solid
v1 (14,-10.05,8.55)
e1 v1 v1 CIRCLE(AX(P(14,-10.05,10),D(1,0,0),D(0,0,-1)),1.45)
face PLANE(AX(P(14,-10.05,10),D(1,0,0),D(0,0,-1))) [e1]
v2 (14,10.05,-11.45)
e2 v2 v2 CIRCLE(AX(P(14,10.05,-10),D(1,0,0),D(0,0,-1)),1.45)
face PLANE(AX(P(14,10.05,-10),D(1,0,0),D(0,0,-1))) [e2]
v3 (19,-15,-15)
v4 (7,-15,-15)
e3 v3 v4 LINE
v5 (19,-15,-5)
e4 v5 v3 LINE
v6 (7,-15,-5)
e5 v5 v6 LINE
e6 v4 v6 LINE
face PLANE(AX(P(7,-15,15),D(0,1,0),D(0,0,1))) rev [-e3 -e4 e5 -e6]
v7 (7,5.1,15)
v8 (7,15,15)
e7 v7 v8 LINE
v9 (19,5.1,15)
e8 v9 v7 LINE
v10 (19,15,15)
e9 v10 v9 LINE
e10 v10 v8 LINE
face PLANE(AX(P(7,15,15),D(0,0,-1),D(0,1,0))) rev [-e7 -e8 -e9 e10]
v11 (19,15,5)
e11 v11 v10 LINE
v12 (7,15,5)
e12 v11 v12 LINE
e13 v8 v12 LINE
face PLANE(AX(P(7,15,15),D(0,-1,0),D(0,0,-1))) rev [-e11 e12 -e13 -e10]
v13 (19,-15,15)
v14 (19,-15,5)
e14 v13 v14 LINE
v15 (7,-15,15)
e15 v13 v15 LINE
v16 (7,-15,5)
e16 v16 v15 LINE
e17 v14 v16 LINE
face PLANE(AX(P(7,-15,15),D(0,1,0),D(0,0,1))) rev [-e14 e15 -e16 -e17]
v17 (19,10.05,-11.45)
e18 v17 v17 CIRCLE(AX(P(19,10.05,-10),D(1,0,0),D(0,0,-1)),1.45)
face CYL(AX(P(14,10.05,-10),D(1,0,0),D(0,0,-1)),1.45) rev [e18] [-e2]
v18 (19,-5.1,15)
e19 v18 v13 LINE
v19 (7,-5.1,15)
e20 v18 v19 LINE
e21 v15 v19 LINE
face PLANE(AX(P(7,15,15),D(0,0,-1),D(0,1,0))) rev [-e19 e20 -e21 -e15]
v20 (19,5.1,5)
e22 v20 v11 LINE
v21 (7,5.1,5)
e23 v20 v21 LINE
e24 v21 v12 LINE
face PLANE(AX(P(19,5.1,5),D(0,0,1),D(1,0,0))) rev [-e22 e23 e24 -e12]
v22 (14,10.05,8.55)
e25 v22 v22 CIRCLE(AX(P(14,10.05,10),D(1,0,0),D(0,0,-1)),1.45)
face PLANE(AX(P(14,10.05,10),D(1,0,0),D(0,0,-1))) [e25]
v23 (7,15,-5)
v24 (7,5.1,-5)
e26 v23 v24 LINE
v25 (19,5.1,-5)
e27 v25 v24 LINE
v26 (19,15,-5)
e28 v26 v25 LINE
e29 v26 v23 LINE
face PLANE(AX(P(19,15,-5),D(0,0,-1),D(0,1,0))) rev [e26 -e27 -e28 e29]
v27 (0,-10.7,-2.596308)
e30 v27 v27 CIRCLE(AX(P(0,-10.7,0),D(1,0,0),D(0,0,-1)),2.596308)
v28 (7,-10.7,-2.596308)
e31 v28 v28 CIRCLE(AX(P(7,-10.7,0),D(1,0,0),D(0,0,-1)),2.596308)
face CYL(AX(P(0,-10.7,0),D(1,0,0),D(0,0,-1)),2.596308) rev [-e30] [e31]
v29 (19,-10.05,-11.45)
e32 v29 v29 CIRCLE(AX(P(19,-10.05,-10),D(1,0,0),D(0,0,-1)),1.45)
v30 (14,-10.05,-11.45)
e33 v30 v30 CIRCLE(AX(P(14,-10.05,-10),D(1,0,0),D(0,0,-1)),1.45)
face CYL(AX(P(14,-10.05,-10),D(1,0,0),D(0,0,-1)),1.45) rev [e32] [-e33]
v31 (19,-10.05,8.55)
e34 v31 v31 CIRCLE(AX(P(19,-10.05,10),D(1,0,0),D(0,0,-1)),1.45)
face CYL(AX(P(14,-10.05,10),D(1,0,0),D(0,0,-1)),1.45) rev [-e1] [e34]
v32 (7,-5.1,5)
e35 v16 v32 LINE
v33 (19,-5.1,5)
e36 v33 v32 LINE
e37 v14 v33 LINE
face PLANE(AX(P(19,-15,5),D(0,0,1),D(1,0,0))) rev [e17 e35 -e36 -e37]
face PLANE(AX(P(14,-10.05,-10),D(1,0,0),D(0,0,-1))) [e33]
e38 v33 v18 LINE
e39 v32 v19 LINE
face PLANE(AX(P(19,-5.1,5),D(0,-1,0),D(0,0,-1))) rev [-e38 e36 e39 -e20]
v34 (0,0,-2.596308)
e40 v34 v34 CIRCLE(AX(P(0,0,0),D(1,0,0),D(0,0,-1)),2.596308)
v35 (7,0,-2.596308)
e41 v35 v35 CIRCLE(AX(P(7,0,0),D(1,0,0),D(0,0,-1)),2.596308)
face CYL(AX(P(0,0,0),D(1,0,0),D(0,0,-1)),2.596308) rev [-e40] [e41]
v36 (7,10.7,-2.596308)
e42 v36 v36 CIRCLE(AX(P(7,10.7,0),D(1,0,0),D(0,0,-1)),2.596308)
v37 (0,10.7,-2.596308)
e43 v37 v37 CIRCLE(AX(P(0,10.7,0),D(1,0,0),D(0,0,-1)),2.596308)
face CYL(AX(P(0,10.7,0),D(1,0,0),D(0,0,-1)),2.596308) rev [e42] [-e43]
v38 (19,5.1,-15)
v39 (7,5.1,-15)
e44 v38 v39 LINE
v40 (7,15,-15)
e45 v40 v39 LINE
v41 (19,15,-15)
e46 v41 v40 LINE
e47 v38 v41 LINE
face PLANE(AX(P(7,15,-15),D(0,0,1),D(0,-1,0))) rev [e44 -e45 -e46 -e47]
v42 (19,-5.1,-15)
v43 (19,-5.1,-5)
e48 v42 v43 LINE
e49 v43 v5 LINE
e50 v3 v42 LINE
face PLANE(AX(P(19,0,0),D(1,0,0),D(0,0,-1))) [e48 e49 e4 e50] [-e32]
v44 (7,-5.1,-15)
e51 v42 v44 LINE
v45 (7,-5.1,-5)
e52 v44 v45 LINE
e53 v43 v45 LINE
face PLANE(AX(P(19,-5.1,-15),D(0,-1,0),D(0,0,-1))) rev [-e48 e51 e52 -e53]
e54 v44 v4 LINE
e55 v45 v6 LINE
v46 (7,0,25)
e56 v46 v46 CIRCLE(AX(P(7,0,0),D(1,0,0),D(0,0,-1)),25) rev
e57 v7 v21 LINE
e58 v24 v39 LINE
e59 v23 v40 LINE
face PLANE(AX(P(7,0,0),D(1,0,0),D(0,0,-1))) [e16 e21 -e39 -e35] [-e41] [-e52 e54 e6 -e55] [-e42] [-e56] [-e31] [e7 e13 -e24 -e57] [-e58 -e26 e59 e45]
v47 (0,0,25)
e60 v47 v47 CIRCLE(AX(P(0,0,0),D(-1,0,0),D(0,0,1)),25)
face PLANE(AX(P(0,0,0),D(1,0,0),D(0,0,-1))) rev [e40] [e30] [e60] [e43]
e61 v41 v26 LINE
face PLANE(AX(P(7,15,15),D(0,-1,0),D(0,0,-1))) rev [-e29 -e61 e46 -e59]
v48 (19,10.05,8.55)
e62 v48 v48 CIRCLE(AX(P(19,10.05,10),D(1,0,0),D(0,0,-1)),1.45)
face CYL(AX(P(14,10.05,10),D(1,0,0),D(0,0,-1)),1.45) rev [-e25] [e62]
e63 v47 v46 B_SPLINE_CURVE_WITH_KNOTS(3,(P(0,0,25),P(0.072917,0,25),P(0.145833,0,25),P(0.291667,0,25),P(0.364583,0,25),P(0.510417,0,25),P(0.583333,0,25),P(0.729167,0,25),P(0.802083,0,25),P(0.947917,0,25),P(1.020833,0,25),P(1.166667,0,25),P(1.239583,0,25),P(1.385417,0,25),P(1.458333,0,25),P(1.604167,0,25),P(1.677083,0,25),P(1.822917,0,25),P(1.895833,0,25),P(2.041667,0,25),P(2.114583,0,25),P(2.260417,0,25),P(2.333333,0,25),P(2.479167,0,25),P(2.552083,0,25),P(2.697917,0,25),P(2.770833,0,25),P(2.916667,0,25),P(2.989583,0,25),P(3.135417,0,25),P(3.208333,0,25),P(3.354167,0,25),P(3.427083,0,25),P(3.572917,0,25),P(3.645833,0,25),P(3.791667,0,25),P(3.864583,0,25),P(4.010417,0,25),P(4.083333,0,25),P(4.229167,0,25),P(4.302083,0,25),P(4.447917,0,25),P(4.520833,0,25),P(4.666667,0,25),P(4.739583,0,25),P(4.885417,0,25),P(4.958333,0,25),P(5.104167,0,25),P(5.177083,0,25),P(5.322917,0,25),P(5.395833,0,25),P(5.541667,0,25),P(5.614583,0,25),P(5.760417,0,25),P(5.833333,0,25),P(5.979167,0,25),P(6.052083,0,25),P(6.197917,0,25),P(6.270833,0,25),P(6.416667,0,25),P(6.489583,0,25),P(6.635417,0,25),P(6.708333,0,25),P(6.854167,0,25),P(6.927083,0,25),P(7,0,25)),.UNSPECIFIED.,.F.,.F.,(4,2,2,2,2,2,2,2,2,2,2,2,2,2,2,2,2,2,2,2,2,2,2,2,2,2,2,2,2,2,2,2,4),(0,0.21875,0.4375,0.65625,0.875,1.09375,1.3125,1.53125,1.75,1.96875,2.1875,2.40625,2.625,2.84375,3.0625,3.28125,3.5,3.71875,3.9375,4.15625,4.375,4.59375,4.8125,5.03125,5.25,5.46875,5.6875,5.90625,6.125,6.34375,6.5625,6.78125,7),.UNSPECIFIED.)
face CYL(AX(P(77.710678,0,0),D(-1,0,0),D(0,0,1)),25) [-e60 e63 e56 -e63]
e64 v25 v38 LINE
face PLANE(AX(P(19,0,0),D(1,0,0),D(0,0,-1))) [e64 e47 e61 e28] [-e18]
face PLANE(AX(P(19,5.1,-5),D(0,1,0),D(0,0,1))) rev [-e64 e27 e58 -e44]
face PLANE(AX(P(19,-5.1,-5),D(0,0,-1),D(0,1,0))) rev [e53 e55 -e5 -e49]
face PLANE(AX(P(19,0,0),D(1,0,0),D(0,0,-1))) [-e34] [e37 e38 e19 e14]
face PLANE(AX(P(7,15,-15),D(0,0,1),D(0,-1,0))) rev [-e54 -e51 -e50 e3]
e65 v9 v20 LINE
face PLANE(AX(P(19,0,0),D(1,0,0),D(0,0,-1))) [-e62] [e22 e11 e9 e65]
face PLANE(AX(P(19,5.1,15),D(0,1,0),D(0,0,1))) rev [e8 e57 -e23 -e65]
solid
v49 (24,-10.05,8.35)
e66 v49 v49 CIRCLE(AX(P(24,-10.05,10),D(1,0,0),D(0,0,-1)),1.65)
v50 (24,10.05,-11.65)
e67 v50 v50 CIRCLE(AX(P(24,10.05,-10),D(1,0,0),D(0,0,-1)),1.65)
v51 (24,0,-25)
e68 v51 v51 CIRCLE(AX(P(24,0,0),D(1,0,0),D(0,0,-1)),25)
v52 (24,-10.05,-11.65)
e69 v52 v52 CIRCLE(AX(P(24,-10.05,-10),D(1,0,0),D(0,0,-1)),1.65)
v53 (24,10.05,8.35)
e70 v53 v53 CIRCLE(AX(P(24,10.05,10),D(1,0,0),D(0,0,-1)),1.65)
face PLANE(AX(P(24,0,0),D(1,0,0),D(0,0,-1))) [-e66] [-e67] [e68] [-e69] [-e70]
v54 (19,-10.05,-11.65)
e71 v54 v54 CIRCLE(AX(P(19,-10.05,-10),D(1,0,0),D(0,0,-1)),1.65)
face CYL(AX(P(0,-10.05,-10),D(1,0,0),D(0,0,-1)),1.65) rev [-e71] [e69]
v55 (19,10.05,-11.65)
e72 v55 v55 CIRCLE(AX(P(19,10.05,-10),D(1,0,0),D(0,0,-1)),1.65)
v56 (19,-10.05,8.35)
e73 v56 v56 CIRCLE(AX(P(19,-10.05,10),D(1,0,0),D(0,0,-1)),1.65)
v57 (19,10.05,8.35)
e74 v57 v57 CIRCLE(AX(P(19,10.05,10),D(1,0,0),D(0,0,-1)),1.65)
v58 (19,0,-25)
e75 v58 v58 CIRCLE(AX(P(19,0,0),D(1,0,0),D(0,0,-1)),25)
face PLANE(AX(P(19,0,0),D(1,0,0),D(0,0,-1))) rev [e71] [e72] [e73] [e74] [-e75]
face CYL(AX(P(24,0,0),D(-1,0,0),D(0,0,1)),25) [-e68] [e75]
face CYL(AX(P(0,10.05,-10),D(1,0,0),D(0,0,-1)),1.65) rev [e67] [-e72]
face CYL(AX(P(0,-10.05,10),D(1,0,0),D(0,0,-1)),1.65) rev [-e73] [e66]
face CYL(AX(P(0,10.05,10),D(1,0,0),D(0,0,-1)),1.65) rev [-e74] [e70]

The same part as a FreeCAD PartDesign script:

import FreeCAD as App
import Part
import Sketcher
Q = App.Units.Quantity


def add_polygon(sketch, points):
    """Adds a closed chain of lines whose ends are joined by coincident constraints."""
    first, n = sketch.GeometryCount, len(points)
    for a, b in zip(points, points[1:] + points[:1]):
        sketch.addGeometry(Part.LineSegment(App.Vector(*a, 0), App.Vector(*b, 0)), False)
    for i in range(n):
        sketch.addConstraint(Sketcher.Constraint("Coincident", first + i, 2, first + (i + 1) % n, 1))

doc = App.newDocument("Part")
params = doc.addObject("Spreadsheet::Sheet", "Params")
for row, (alias, value) in enumerate([
    ("sketch1_width", "30 mm"),
    ("pad1_length", "7 mm"),
    ("sketch2_height", "10 mm"),
    ("sketch2_width", "9.9 mm"),
    ("pad2_length", "12 mm"),
    ("sketch4_diameter", "50 mm"),
    ("sketch4_width", "30 mm"),
    ("pad3_length", "7 mm"),
    ("sketch5_diameter", "50 mm"),
    ("pad4_length", "5 mm"),
    ("sketch6_diameter", "2.9 mm"),
    ("pad5_length", "10 mm"),
    ("sketch7_diameter", "3.3 mm"),
], start=1):
    params.set(f"A{row}", alias)
    params.set(f"B{row}", "=" + value)
    params.setAlias(f"B{row}", alias)

body = doc.addObject("PartDesign::Body", "Body")

sketch1 = body.newObject("Sketcher::SketchObject", "Sketch")
sketch1.AttachmentSupport = (doc.getObject("YZ_Plane"), [""])
sketch1.MapMode = "FlatFace"
add_polygon(sketch1, [(15, 15), (-15, 15), (-15, -15), (15, -15)])
sketch1.addConstraint([
    Sketcher.Constraint("Horizontal", 0),
    Sketcher.Constraint("Vertical", 1),
    Sketcher.Constraint("Horizontal", 2),
    Sketcher.Constraint("Vertical", 3),
    Sketcher.Constraint("Symmetric", 0, 2, 2, 2, -1, 1),
    Sketcher.Constraint("Equal", 2, 1),
    Sketcher.Constraint("DistanceX", 0, 2, 0, 1, Q("30 mm")),
])
sketch1.setExpression("Constraints[10]", "Params.sketch1_width")
pad1 = body.newObject("PartDesign::Pad", "Pad")
pad1.Profile = sketch1
pad1.setExpression("Length", "Params.pad1_length")

sketch2 = body.newObject("Sketcher::SketchObject", "Sketch001")
sketch2.AttachmentSupport = (doc.getObject("YZ_Plane"), [""])
sketch2.MapMode = "FlatFace"
sketch2.AttachmentOffset = App.Placement(App.Vector(0, 0, 7), App.Rotation())
add_polygon(sketch2, [(15, 15), (5, 15), (5, 5), (15, 5)])
add_polygon(sketch2, [(15, -5), (5, -5), (5, -15), (15, -15)])
add_polygon(sketch2, [(-5, -5), (-15, -5), (-15, -15), (-5, -15)])
add_polygon(sketch2, [(-5, 15), (-15, 15), (-15, 5), (-5, 5)])
sketch2.addConstraint([
    Sketcher.Constraint("Horizontal", 0),
    Sketcher.Constraint("Vertical", 1),
    Sketcher.Constraint("Horizontal", 2),
    Sketcher.Constraint("Vertical", 3),
    Sketcher.Constraint("Horizontal", 4),
    Sketcher.Constraint("Vertical", 5),
    Sketcher.Constraint("Horizontal", 6),
    Sketcher.Constraint("Vertical", 7),
    Sketcher.Constraint("Horizontal", 8),
    Sketcher.Constraint("Vertical", 9),
    Sketcher.Constraint("Horizontal", 10),
    Sketcher.Constraint("Vertical", 11),
    Sketcher.Constraint("Horizontal", 12),
    Sketcher.Constraint("Vertical", 13),
    Sketcher.Constraint("Horizontal", 14),
    Sketcher.Constraint("Vertical", 15),
    Sketcher.Constraint("Symmetric", 2, 2, 8, 2, -1, 1),
    Sketcher.Constraint("Symmetric", 0, 2, 10, 2, -1, 1),
    Sketcher.Constraint("Symmetric", 6, 2, 12, 2, -1, 1),
    Sketcher.Constraint("Symmetric", 4, 2, 14, 2, -1, 1),
    Sketcher.Constraint("Symmetric", 7, 2, 8, 2, -2),
    Sketcher.Constraint("Symmetric", 5, 2, 10, 2, -2),
    Sketcher.Constraint("DistanceY", 1, 2, 1, 1, Q("10 mm")),
    Sketcher.Constraint("DistanceX", 0, 2, 0, 1, Q("9.9 mm")),
    Sketcher.Constraint("DistanceY", -1, 1, 0, 2, Q("15 mm")),
    Sketcher.Constraint("DistanceX", -1, 1, 2, 2, Q("15 mm")),
])
sketch2.setExpression("Constraints[38]", "Params.sketch2_height")
sketch2.setExpression("Constraints[39]", "Params.sketch2_width")
pad2 = body.newObject("PartDesign::Pad", "Pad001")
pad2.Profile = sketch2
pad2.setExpression("Length", "Params.pad2_length")

sketch3 = body.newObject("Sketcher::SketchObject", "Sketch002")
sketch3.AttachmentSupport = (doc.getObject("YZ_Plane"), [""])
sketch3.MapMode = "FlatFace"
sketch3.AttachmentOffset = App.Placement(App.Vector(0, 0, 7), App.Rotation())
sketch3.addGeometry([
    Part.Circle(App.Vector(10.7, 0, 0), App.Vector(0, 0, 1), 2.6),
    Part.Circle(App.Vector(-10.7, 0, 0), App.Vector(0, 0, 1), 2.6),
    Part.Circle(App.Vector(0, 0, 0), App.Vector(0, 0, 1), 2.6),
], False)
sketch3.addConstraint([
    Sketcher.Constraint("Coincident", 2, 3, -1, 1),
    Sketcher.Constraint("Equal", 0, 1),
    Sketcher.Constraint("Equal", 1, 2),
    Sketcher.Constraint("Symmetric", 0, 3, 1, 3, -1, 1),
    Sketcher.Constraint("PointOnObject", 0, 3, -1),
    Sketcher.Constraint("DistanceX", -1, 1, 0, 3, Q("10.7 mm")),
    Sketcher.Constraint("Diameter", 0, Q("5.192616 mm")),
])
pocket1 = body.newObject("PartDesign::Pocket", "Pocket")
pocket1.Profile = sketch3
pocket1.Type = "ThroughAll"

sketch4 = body.newObject("Sketcher::SketchObject", "Sketch003")
sketch4.AttachmentSupport = (doc.getObject("YZ_Plane"), [""])
sketch4.MapMode = "FlatFace"
sketch4.addGeometry(Part.Circle(App.Vector(0, 0, 0), App.Vector(0, 0, 1), 25), False)
add_polygon(sketch4, [(-15, 15), (-15, -15), (15, -15), (15, 15)])
sketch4.addConstraint([
    Sketcher.Constraint("Vertical", 1),
    Sketcher.Constraint("Horizontal", 2),
    Sketcher.Constraint("Vertical", 3),
    Sketcher.Constraint("Horizontal", 4),
    Sketcher.Constraint("Coincident", 0, 3, -1, 1),
    Sketcher.Constraint("Symmetric", 1, 2, 3, 2, -1, 1),
    Sketcher.Constraint("Equal", 4, 1),
    Sketcher.Constraint("Diameter", 0, Q("50 mm")),
    Sketcher.Constraint("DistanceX", 2, 1, 2, 2, Q("30 mm")),
])
sketch4.setExpression("Constraints[11]", "Params.sketch4_diameter")
sketch4.setExpression("Constraints[12]", "Params.sketch4_width")
pad3 = body.newObject("PartDesign::Pad", "Pad002")
pad3.Profile = sketch4
pad3.setExpression("Length", "Params.pad3_length")
body2 = doc.addObject("PartDesign::Body", "Body001")

sketch5 = body2.newObject("Sketcher::SketchObject", "Sketch004")
sketch5.AttachmentSupport = (doc.getObject("YZ_Plane001"), [""])
sketch5.MapMode = "FlatFace"
sketch5.AttachmentOffset = App.Placement(App.Vector(0, 0, 19), App.Rotation())
sketch5.addGeometry(Part.Circle(App.Vector(0, 0, 0), App.Vector(0, 0, 1), 25), False)
sketch5.addConstraint([
    Sketcher.Constraint("Coincident", 0, 3, -1, 1),
    Sketcher.Constraint("Diameter", 0, Q("50 mm")),
])
sketch5.setExpression("Constraints[1]", "Params.sketch5_diameter")
pad4 = body2.newObject("PartDesign::Pad", "Pad003")
pad4.Profile = sketch5
pad4.setExpression("Length", "Params.pad4_length")
body3 = doc.addObject("PartDesign::Body", "Body002")
body3.AllowCompound = True

sketch6 = body3.newObject("Sketcher::SketchObject", "Sketch005")
sketch6.AttachmentSupport = (doc.getObject("YZ_Plane002"), [""])
sketch6.MapMode = "FlatFace"
sketch6.AttachmentOffset = App.Placement(App.Vector(0, 0, 24), App.Rotation())
sketch6.addGeometry([
    Part.Circle(App.Vector(10.1, 10, 0), App.Vector(0, 0, 1), 1.4),
    Part.Circle(App.Vector(-10.1, 10, 0), App.Vector(0, 0, 1), 1.4),
    Part.Circle(App.Vector(-10.1, -10, 0), App.Vector(0, 0, 1), 1.4),
    Part.Circle(App.Vector(10.1, -10, 0), App.Vector(0, 0, 1), 1.4),
], False)
sketch6.addConstraint([
    Sketcher.Constraint("Equal", 0, 1),
    Sketcher.Constraint("Equal", 1, 2),
    Sketcher.Constraint("Equal", 2, 3),
    Sketcher.Constraint("Symmetric", 0, 3, 2, 3, -1, 1),
    Sketcher.Constraint("Symmetric", 1, 3, 3, 3, -1, 1),
    Sketcher.Constraint("Symmetric", 0, 3, 1, 3, -2),
    Sketcher.Constraint("Diameter", 0, Q("2.9 mm")),
    Sketcher.Constraint("DistanceY", -1, 1, 0, 3, Q("10 mm")),
    Sketcher.Constraint("DistanceX", 1, 3, 0, 3, Q("20.1 mm")),
])
sketch6.setExpression("Constraints[6]", "Params.sketch6_diameter")
pad5 = body3.newObject("PartDesign::Pad", "Pad004")
pad5.Profile = sketch6
pad5.setExpression("Length", "Params.pad5_length")
pad5.Reversed = True
doc.recompute()

body4 = doc.addObject("PartDesign::Body", "Body003")
body4.BaseFeature = body3
boolean = body.newObject("PartDesign::Boolean", "Boolean")
boolean.Type = "Cut"
boolean.addObjects([body4])
doc.recompute()

boolean2 = body2.newObject("PartDesign::Boolean", "Boolean001")
boolean2.Type = "Cut"
boolean2.addObjects([body3])

sketch7 = body2.newObject("Sketcher::SketchObject", "Sketch006")
sketch7.AttachmentSupport = (doc.getObject("YZ_Plane001"), [""])
sketch7.MapMode = "FlatFace"
sketch7.AttachmentOffset = App.Placement(App.Vector(0, 0, 24), App.Rotation())
sketch7.addGeometry([
    Part.Circle(App.Vector(10.1, 10, 0), App.Vector(0, 0, 1), 1.6),
    Part.Circle(App.Vector(-10.1, 10, 0), App.Vector(0, 0, 1), 1.6),
    Part.Circle(App.Vector(-10.1, -10, 0), App.Vector(0, 0, 1), 1.6),
    Part.Circle(App.Vector(10.1, -10, 0), App.Vector(0, 0, 1), 1.6),
], False)
sketch7.addConstraint([
    Sketcher.Constraint("Equal", 0, 1),
    Sketcher.Constraint("Equal", 1, 2),
    Sketcher.Constraint("Equal", 2, 3),
    Sketcher.Constraint("Symmetric", 0, 3, 2, 3, -1, 1),
    Sketcher.Constraint("Symmetric", 1, 3, 3, 3, -1, 1),
    Sketcher.Constraint("Symmetric", 0, 3, 1, 3, -2),
    Sketcher.Constraint("Diameter", 0, Q("3.3 mm")),
    Sketcher.Constraint("DistanceY", -1, 1, 0, 3, Q("10 mm")),
    Sketcher.Constraint("DistanceX", 1, 3, 0, 3, Q("20.1 mm")),
])
sketch7.setExpression("Constraints[6]", "Params.sketch7_diameter")
pocket2 = body2.newObject("PartDesign::Pocket", "Pocket001")
pocket2.Profile = sketch7
pocket2.Type = "ThroughAll"

doc.recompute()
